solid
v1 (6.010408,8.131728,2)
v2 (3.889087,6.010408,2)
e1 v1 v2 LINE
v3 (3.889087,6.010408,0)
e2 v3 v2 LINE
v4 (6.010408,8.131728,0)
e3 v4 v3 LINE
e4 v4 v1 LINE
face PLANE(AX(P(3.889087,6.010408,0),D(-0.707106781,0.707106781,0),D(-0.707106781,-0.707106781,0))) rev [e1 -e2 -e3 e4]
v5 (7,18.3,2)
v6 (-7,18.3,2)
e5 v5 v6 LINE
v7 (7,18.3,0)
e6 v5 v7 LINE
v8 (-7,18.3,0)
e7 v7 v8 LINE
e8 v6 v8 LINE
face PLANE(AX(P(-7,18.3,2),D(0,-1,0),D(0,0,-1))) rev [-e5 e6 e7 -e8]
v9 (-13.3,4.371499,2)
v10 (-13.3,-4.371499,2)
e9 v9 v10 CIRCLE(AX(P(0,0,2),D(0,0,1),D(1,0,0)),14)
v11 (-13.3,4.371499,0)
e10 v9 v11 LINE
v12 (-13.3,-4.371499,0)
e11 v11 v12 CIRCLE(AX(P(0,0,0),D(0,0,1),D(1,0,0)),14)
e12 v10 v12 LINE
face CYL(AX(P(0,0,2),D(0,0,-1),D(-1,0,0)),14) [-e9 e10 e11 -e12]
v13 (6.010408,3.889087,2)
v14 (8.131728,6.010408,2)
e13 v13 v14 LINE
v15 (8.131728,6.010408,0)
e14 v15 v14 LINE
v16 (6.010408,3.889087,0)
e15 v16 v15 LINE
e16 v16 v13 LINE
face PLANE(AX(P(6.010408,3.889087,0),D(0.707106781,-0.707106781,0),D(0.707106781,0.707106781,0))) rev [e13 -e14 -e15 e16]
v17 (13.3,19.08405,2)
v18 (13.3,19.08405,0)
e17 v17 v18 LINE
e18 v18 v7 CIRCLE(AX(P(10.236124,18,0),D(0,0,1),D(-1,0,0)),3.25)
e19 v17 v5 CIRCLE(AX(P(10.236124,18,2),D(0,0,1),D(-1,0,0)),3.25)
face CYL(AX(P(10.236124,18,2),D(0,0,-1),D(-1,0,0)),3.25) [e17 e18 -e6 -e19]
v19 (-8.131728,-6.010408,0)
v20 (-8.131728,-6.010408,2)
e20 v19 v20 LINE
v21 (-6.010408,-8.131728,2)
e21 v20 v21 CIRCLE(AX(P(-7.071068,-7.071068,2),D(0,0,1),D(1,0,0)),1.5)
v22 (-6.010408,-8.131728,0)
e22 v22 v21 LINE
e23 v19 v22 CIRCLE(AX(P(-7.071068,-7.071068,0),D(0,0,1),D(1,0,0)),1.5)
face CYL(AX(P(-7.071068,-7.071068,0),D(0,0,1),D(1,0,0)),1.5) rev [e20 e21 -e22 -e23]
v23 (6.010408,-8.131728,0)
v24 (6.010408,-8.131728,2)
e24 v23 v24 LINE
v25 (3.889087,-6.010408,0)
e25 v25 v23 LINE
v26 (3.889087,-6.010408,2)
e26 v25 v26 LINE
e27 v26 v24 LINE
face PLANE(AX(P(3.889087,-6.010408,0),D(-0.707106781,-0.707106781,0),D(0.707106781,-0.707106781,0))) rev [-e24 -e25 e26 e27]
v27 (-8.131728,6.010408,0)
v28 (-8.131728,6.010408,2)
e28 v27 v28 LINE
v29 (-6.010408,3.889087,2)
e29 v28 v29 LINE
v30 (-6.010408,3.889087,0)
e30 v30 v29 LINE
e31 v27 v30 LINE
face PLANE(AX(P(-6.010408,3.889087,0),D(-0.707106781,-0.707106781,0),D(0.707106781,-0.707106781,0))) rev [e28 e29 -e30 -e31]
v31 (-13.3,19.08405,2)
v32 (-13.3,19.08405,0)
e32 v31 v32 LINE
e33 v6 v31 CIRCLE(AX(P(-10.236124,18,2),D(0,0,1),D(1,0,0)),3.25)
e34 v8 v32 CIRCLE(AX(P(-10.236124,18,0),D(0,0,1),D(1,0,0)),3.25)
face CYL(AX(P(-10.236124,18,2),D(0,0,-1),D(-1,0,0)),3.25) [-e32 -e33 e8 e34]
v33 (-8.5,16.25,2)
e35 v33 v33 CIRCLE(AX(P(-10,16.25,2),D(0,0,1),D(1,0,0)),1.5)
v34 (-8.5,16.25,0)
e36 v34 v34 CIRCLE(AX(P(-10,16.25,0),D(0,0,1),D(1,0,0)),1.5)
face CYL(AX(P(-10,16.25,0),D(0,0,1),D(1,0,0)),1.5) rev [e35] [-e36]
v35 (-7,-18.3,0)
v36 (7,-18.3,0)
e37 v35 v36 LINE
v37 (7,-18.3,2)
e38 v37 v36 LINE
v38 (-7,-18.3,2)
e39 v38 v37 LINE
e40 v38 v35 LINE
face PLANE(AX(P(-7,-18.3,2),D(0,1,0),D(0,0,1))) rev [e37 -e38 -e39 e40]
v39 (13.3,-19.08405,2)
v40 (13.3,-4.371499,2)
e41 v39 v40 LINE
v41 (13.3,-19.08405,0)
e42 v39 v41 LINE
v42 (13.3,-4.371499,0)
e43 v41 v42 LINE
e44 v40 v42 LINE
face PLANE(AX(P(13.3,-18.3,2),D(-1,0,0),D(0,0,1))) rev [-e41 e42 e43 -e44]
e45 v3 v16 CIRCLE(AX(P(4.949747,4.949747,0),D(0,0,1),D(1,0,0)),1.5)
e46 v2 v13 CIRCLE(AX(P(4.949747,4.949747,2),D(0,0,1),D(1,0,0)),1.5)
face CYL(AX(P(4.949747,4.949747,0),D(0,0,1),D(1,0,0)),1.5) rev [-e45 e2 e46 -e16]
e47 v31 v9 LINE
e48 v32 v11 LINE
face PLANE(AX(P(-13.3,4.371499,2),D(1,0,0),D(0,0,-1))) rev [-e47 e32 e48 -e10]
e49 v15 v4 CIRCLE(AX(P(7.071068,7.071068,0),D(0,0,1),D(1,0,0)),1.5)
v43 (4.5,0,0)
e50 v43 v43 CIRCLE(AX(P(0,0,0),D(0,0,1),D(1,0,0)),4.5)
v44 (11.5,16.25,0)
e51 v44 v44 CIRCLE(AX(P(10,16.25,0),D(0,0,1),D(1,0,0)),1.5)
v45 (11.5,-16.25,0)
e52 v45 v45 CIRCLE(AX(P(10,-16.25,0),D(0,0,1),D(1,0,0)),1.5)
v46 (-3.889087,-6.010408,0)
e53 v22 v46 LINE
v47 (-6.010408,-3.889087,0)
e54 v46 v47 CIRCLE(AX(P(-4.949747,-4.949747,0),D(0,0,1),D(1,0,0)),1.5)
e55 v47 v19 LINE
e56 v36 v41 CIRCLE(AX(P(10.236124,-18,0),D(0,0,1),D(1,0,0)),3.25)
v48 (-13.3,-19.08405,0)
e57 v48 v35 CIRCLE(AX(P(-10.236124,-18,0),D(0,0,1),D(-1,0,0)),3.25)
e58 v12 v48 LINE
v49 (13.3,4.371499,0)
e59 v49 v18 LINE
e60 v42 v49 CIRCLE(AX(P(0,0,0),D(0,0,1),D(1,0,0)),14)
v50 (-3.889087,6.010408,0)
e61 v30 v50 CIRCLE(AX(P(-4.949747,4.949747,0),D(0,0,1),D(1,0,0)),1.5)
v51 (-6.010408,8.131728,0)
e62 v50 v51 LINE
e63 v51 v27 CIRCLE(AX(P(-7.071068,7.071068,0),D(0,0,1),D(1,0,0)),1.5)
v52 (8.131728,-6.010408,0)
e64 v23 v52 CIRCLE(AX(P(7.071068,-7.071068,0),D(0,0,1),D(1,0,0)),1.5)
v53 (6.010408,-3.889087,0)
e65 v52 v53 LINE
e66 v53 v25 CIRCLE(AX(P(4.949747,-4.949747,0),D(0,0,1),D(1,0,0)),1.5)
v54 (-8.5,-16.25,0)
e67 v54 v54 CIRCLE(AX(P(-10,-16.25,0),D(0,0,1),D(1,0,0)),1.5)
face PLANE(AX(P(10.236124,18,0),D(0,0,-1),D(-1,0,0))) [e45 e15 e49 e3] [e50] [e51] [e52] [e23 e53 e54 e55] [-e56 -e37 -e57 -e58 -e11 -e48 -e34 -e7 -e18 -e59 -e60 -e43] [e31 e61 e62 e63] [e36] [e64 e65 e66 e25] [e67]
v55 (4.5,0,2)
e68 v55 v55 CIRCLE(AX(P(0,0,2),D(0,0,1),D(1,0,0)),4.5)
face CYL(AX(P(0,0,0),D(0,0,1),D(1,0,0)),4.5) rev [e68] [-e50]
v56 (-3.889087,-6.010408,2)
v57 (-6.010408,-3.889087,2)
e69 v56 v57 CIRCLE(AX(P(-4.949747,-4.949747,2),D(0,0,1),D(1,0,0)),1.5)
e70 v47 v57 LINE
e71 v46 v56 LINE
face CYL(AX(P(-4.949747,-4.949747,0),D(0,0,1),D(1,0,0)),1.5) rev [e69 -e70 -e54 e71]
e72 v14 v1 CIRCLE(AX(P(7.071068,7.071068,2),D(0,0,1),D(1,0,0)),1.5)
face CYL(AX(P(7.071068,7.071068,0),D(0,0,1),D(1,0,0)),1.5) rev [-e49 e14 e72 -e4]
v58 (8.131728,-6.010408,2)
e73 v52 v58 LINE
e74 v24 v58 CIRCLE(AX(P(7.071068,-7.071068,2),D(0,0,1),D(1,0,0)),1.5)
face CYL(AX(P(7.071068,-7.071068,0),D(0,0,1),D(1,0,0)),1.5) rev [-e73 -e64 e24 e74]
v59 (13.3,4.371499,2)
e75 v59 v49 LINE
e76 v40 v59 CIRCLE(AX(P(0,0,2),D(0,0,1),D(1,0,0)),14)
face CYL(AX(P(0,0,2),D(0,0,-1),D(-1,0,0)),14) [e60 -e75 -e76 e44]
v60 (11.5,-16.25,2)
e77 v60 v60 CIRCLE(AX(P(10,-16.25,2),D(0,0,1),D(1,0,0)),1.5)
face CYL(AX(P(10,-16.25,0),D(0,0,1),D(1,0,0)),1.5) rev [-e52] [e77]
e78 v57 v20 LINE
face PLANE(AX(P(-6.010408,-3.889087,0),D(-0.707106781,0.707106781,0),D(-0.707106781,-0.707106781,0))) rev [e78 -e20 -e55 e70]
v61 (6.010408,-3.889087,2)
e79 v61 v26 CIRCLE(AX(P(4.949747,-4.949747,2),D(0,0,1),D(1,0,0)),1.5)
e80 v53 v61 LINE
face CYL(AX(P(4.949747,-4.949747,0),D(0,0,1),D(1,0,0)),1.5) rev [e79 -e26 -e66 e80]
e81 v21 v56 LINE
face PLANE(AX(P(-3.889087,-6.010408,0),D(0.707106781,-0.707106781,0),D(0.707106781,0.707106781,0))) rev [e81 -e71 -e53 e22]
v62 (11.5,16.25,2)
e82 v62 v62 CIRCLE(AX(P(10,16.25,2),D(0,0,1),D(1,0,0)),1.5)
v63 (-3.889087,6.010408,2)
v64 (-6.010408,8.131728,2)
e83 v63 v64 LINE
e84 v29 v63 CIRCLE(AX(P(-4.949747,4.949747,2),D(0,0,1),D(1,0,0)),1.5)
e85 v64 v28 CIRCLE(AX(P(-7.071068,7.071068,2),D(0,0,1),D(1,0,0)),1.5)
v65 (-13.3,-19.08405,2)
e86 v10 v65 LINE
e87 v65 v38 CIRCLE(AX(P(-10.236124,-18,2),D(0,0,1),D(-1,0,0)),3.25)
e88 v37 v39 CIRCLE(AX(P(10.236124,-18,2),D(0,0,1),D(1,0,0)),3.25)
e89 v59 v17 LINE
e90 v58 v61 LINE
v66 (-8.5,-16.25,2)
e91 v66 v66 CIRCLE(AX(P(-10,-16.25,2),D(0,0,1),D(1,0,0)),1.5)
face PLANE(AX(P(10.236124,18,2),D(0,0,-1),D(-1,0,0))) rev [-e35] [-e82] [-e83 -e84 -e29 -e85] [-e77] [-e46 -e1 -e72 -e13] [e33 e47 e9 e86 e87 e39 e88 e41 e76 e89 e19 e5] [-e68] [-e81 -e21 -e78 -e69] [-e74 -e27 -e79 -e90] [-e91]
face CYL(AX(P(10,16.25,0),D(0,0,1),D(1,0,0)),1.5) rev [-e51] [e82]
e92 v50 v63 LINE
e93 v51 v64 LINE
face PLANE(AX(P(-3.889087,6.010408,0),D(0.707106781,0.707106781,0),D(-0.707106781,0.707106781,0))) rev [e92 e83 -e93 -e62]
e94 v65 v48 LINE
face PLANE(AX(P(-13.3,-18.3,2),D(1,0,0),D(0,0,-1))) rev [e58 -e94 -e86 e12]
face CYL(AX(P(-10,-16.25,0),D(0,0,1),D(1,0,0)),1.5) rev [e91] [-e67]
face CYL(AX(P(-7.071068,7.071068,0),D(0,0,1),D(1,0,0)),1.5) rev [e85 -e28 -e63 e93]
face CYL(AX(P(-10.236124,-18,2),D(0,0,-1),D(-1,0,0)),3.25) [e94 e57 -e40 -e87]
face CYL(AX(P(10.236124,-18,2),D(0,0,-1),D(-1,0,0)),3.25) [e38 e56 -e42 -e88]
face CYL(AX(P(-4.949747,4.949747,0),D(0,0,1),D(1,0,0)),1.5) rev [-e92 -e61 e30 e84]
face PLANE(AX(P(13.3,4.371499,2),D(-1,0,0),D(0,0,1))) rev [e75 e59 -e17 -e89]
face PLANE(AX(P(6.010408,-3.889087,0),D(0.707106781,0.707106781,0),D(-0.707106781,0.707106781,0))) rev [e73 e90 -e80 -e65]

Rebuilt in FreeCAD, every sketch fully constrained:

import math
import FreeCAD as App
import Part
import Sketcher
from FreeCAD import Vector
Q = App.Units.Quantity

doc = App.newDocument("Part")
params = doc.addObject("Spreadsheet::Sheet", "Params")
for row, (alias, value) in enumerate([
    ("sketch1_radius", "14 mm"),
    ("sketch1_width", "14 mm"),
    ("sketch1_radius2", "3.25 mm"),
    ("pad1_length", "2 mm"),
    ("sketch2_diameter", "9 mm"),
    ("sketch2_diameter2", "3 mm"),
    ("pocket1_length", "2 mm"),
], start=1):
    params.set(f"A{row}", alias)
    params.set(f"B{row}", "=" + value)
    params.setAlias(f"B{row}", alias)

body = doc.addObject("PartDesign::Body", "Body")

sketch1 = body.newObject("Sketcher::SketchObject", "Sketch")
sketch1.AttachmentSupport = (doc.getObject("XY_Plane"), [""])
sketch1.MapMode = "FlatFace"
sketch1.addGeometry(Part.LineSegment(Vector(-13.3, 19.1, 0), Vector(-13.3, 4.4, 0)), False)
sketch1.addGeometry(Part.ArcOfCircle(Part.Circle(Vector(0, 0, 0), Vector(0, 0, 1), 14), math.radians(162), math.radians(198)), False)
sketch1.addGeometry(Part.LineSegment(Vector(-13.3, -4.4, 0), Vector(-13.3, -19.1, 0)), False)
sketch1.addGeometry(Part.ArcOfCircle(Part.Circle(Vector(-10.2, -18, 0), Vector(0, 0, 1), 3.2), math.radians(-161), math.radians(-5)), False)
sketch1.addGeometry(Part.LineSegment(Vector(-7, -18.3, 0), Vector(7, -18.3, 0)), False)
sketch1.addGeometry(Part.ArcOfCircle(Part.Circle(Vector(10.2, -18, 0), Vector(0, 0, 1), 3.2), math.radians(-175), math.radians(-19)), False)
sketch1.addGeometry(Part.LineSegment(Vector(13.3, -19.1, 0), Vector(13.3, -4.4, 0)), False)
sketch1.addGeometry(Part.ArcOfCircle(Part.Circle(Vector(0, 0, 0), Vector(0, 0, 1), 14), math.radians(-18), math.radians(18)), False)
sketch1.addGeometry(Part.LineSegment(Vector(13.3, 4.4, 0), Vector(13.3, 19.1, 0)), False)
sketch1.addGeometry(Part.ArcOfCircle(Part.Circle(Vector(10.2, 18, 0), Vector(0, 0, 1), 3.2), math.radians(19), math.radians(175)), False)
sketch1.addGeometry(Part.LineSegment(Vector(7, 18.3, 0), Vector(-7, 18.3, 0)), False)
sketch1.addGeometry(Part.ArcOfCircle(Part.Circle(Vector(-10.2, 18, 0), Vector(0, 0, 1), 3.2), math.radians(5), math.radians(161)), False)
sketch1.addConstraint(Sketcher.Constraint("Coincident", 0, 2, 1, 1))
sketch1.addConstraint(Sketcher.Constraint("Coincident", 1, 2, 2, 1))
sketch1.addConstraint(Sketcher.Constraint("Coincident", 2, 2, 3, 1))
sketch1.addConstraint(Sketcher.Constraint("Coincident", 3, 2, 4, 1))
sketch1.addConstraint(Sketcher.Constraint("Coincident", 4, 2, 5, 1))
sketch1.addConstraint(Sketcher.Constraint("Coincident", 5, 2, 6, 1))
sketch1.addConstraint(Sketcher.Constraint("Coincident", 6, 2, 7, 1))
sketch1.addConstraint(Sketcher.Constraint("Coincident", 7, 2, 8, 1))
sketch1.addConstraint(Sketcher.Constraint("Coincident", 8, 2, 9, 1))
sketch1.addConstraint(Sketcher.Constraint("Coincident", 9, 2, 10, 1))
sketch1.addConstraint(Sketcher.Constraint("Coincident", 10, 2, 11, 1))
sketch1.addConstraint(Sketcher.Constraint("Coincident", 11, 2, 0, 1))
sketch1.addConstraint(Sketcher.Constraint("Vertical", 0))
sketch1.addConstraint(Sketcher.Constraint("Vertical", 2))
sketch1.addConstraint(Sketcher.Constraint("Horizontal", 4))
sketch1.addConstraint(Sketcher.Constraint("Vertical", 6))
sketch1.addConstraint(Sketcher.Constraint("Vertical", 8))
sketch1.addConstraint(Sketcher.Constraint("Horizontal", 10))
sketch1.addConstraint(Sketcher.Constraint("Coincident", 1, 3, -1, 1))
sketch1.addConstraint(Sketcher.Constraint("Coincident", 7, 3, -1, 1))
sketch1.addConstraint(Sketcher.Constraint("Equal", 3, 5))
sketch1.addConstraint(Sketcher.Constraint("Equal", 1, 7))
sketch1.addConstraint(Sketcher.Constraint("Equal", 5, 9))
sketch1.addConstraint(Sketcher.Constraint("Equal", 9, 11))
sketch1.addConstraint(Sketcher.Constraint("Symmetric", 3, 3, 9, 3, -1, 1))
sketch1.addConstraint(Sketcher.Constraint("Symmetric", 5, 3, 11, 3, -1, 1))
sketch1.addConstraint(Sketcher.Constraint("Symmetric", 3, 3, 5, 3, -2))
sketch1.addConstraint(Sketcher.Constraint("Horizontal", 2, 2, 5, 2))
sketch1.addConstraint(Sketcher.Constraint("Horizontal", 0, 2, 7, 2))
sketch1.addConstraint(Sketcher.Constraint("Vertical", 0, 2, 1, 2))
sketch1.addConstraint(Sketcher.Constraint("Vertical", 4, 2, 9, 2))
sketch1.addConstraint(Sketcher.Constraint("Radius", 1, Q("14 mm")))
sketch1.addConstraint(Sketcher.Constraint("DistanceX", 4, 1, 4, 2, Q("14 mm")))
sketch1.addConstraint(Sketcher.Constraint("Radius", 3, Q("3.25 mm")))
sketch1.addConstraint(Sketcher.Constraint("DistanceY", 3, 3, -1, 1, Q("18 mm")))
sketch1.addConstraint(Sketcher.Constraint("DistanceX", 0, 2, -1, 1, Q("13.3 mm")))
sketch1.addConstraint(Sketcher.Constraint("DistanceY", 3, 2, -1, 1, Q("18.3 mm")))
sketch1.setExpression("Constraints[31]", "Params.sketch1_radius")
sketch1.setExpression("Constraints[32]", "Params.sketch1_width")
sketch1.setExpression("Constraints[33]", "Params.sketch1_radius2")
pad1 = body.newObject("PartDesign::Pad", "Pad")
pad1.Profile = sketch1
pad1.setExpression("Length", "Params.pad1_length")

sketch2 = body.newObject("Sketcher::SketchObject", "Sketch001")
sketch2.AttachmentSupport = (doc.getObject("XY_Plane"), [""])
sketch2.MapMode = "FlatFace"
sketch2.AttachmentOffset = App.Placement(Vector(0, 0, 2), App.Rotation())
sketch2.addGeometry(Part.Circle(Vector(0, 0, 0), Vector(0, 0, 1), 4.5), False)
sketch2.addGeometry(Part.Circle(Vector(-10, 16.2, 0), Vector(0, 0, 1), 1.5), False)
sketch2.addGeometry(Part.Circle(Vector(10, 16.2, 0), Vector(0, 0, 1), 1.5), False)
sketch2.addGeometry(Part.Circle(Vector(-10, -16.2, 0), Vector(0, 0, 1), 1.5), False)
sketch2.addGeometry(Part.Circle(Vector(10, -16.2, 0), Vector(0, 0, 1), 1.5), False)
sketch2.addGeometry(Part.LineSegment(Vector(6, 8.1, 0), Vector(3.9, 6, 0)), False)
sketch2.addGeometry(Part.ArcOfCircle(Part.Circle(Vector(4.9, 4.9, 0), Vector(0, 0, 1), 1.5), math.radians(135), math.radians(315)), False)
sketch2.addGeometry(Part.LineSegment(Vector(6, 3.9, 0), Vector(8.1, 6, 0)), False)
sketch2.addGeometry(Part.ArcOfCircle(Part.Circle(Vector(7.1, 7.1, 0), Vector(0, 0, 1), 1.5), math.radians(-45), math.radians(135)), False)
sketch2.addGeometry(Part.LineSegment(Vector(8.1, -6, 0), Vector(6, -3.9, 0)), False)
sketch2.addGeometry(Part.ArcOfCircle(Part.Circle(Vector(4.9, -4.9, 0), Vector(0, 0, 1), 1.5), math.radians(45), math.radians(225)), False)
sketch2.addGeometry(Part.LineSegment(Vector(3.9, -6, 0), Vector(6, -8.1, 0)), False)
sketch2.addGeometry(Part.ArcOfCircle(Part.Circle(Vector(7.1, -7.1, 0), Vector(0, 0, 1), 1.5), math.radians(-135), math.radians(45)), False)
sketch2.addGeometry(Part.LineSegment(Vector(-6, -8.1, 0), Vector(-3.9, -6, 0)), False)
sketch2.addGeometry(Part.ArcOfCircle(Part.Circle(Vector(-4.9, -4.9, 0), Vector(0, 0, 1), 1.5), math.radians(-45), math.radians(135)), False)
sketch2.addGeometry(Part.LineSegment(Vector(-6, -3.9, 0), Vector(-8.1, -6, 0)), False)
sketch2.addGeometry(Part.ArcOfCircle(Part.Circle(Vector(-7.1, -7.1, 0), Vector(0, 0, 1), 1.5), math.radians(135), math.radians(315)), False)
sketch2.addGeometry(Part.LineSegment(Vector(-8.1, 6, 0), Vector(-6, 3.9, 0)), False)
sketch2.addGeometry(Part.ArcOfCircle(Part.Circle(Vector(-4.9, 4.9, 0), Vector(0, 0, 1), 1.5), math.radians(-135), math.radians(45)), False)
sketch2.addGeometry(Part.LineSegment(Vector(-3.9, 6, 0), Vector(-6, 8.1, 0)), False)
sketch2.addGeometry(Part.ArcOfCircle(Part.Circle(Vector(-7.1, 7.1, 0), Vector(0, 0, 1), 1.5), math.radians(45), math.radians(225)), False)
sketch2.addConstraint(Sketcher.Constraint("Tangent", 5, 2, 6, 1))
sketch2.addConstraint(Sketcher.Constraint("Tangent", 6, 2, 7, 1))
sketch2.addConstraint(Sketcher.Constraint("Tangent", 7, 2, 8, 1))
sketch2.addConstraint(Sketcher.Constraint("Tangent", 8, 2, 5, 1))
sketch2.addConstraint(Sketcher.Constraint("Tangent", 9, 2, 10, 1))
sketch2.addConstraint(Sketcher.Constraint("Tangent", 10, 2, 11, 1))
sketch2.addConstraint(Sketcher.Constraint("Tangent", 11, 2, 12, 1))
sketch2.addConstraint(Sketcher.Constraint("Tangent", 12, 2, 9, 1))
sketch2.addConstraint(Sketcher.Constraint("Tangent", 13, 2, 14, 1))
sketch2.addConstraint(Sketcher.Constraint("Tangent", 14, 2, 15, 1))
sketch2.addConstraint(Sketcher.Constraint("Tangent", 15, 2, 16, 1))
sketch2.addConstraint(Sketcher.Constraint("Tangent", 16, 2, 13, 1))
sketch2.addConstraint(Sketcher.Constraint("Tangent", 17, 2, 18, 1))
sketch2.addConstraint(Sketcher.Constraint("Tangent", 18, 2, 19, 1))
sketch2.addConstraint(Sketcher.Constraint("Tangent", 19, 2, 20, 1))
sketch2.addConstraint(Sketcher.Constraint("Tangent", 20, 2, 17, 1))
sketch2.addConstraint(Sketcher.Constraint("Coincident", 0, 3, -1, 1))
sketch2.addConstraint(Sketcher.Constraint("Equal", 1, 2))
sketch2.addConstraint(Sketcher.Constraint("Equal", 2, 3))
sketch2.addConstraint(Sketcher.Constraint("Equal", 3, 4))
sketch2.addConstraint(Sketcher.Constraint("Equal", 4, 6))
sketch2.addConstraint(Sketcher.Constraint("Equal", 6, 8))
sketch2.addConstraint(Sketcher.Constraint("Equal", 8, 10))
sketch2.addConstraint(Sketcher.Constraint("Equal", 10, 12))
sketch2.addConstraint(Sketcher.Constraint("Equal", 12, 14))
sketch2.addConstraint(Sketcher.Constraint("Equal", 14, 16))
sketch2.addConstraint(Sketcher.Constraint("Equal", 16, 18))
sketch2.addConstraint(Sketcher.Constraint("Equal", 18, 20))
sketch2.addConstraint(Sketcher.Constraint("Symmetric", 2, 3, 3, 3, -1, 1))
sketch2.addConstraint(Sketcher.Constraint("Symmetric", 1, 3, 4, 3, -1, 1))
sketch2.addConstraint(Sketcher.Constraint("Symmetric", 6, 3, 14, 3, -1, 1))
sketch2.addConstraint(Sketcher.Constraint("Symmetric", 8, 3, 16, 3, -1, 1))
sketch2.addConstraint(Sketcher.Constraint("Symmetric", 10, 3, 18, 3, -1, 1))
sketch2.addConstraint(Sketcher.Constraint("Symmetric", 12, 3, 20, 3, -1, 1))
sketch2.addConstraint(Sketcher.Constraint("Symmetric", 1, 3, 2, 3, -2))
sketch2.addConstraint(Sketcher.Constraint("Symmetric", 10, 3, 14, 3, -2))
sketch2.addConstraint(Sketcher.Constraint("Symmetric", 12, 3, 16, 3, -2))
sketch2.addConstraint(Sketcher.Constraint("Perpendicular", 7, 9))
sketch2.addConstraint(Sketcher.Constraint("Horizontal", 5, 2, 7, 2))
sketch2.addConstraint(Sketcher.Constraint("Diameter", 0, Q("9 mm")))
sketch2.addConstraint(Sketcher.Constraint("Diameter", 1, Q("3 mm")))
sketch2.addConstraint(Sketcher.Constraint("DistanceX", 1, 3, -1, 1, Q("10 mm")))
sketch2.addConstraint(Sketcher.Constraint("DistanceY", 3, 3, 1, 3, Q("32.5 mm")))
sketch2.addConstraint(Sketcher.Constraint("DistanceX", -1, 1, 6, 3, Q("4.949747 mm")))
sketch2.addConstraint(Sketcher.Constraint("DistanceY", -1, 1, 6, 3, Q("4.949747 mm")))
sketch2.setExpression("Constraints[39]", "Params.sketch2_diameter")
sketch2.setExpression("Constraints[40]", "Params.sketch2_diameter2")
pocket1 = body.newObject("PartDesign::Pocket", "Pocket")
pocket1.Profile = sketch2
pocket1.setExpression("Length", "Params.pocket1_length")

doc.recompute()
